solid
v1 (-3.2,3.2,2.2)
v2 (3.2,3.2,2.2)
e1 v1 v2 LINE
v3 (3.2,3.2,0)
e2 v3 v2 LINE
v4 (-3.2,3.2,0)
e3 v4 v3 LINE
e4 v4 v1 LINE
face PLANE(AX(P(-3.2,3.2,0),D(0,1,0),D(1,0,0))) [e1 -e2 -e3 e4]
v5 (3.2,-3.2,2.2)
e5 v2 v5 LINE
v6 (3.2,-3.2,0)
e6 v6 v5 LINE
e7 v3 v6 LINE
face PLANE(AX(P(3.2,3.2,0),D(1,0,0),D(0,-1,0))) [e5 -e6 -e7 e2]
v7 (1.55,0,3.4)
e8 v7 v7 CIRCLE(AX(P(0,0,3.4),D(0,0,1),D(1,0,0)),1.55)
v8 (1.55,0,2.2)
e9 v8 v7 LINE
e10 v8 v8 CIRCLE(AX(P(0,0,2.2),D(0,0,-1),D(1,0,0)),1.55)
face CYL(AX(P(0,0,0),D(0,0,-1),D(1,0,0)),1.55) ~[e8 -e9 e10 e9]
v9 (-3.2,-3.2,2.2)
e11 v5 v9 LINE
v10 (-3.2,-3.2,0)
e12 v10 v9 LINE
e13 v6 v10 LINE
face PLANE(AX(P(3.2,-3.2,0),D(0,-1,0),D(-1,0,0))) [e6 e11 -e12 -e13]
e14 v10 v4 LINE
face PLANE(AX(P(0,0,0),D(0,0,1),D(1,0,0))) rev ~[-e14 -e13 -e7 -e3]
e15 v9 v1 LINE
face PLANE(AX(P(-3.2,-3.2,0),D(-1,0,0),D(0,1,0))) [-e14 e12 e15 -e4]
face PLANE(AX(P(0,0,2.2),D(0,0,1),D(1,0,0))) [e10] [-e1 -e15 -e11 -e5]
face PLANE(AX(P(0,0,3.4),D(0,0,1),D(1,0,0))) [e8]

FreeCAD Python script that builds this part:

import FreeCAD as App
import Part
import Sketcher

V = App.Vector


def add_polygon(sketch, points):
    """Adds a closed chain of lines whose ends are joined by coincident constraints."""
    first, n = sketch.GeometryCount, len(points)
    for a, b in zip(points, points[1:] + points[:1]):
        sketch.addGeometry(Part.LineSegment(App.Vector(*a, 0), App.Vector(*b, 0)), False)
    for i in range(n):
        sketch.addConstraint(Sketcher.Constraint("Coincident", first + i, 2, first + (i + 1) % n, 1))

doc = App.newDocument("Part")
params = doc.addObject("Spreadsheet::Sheet", "Params")
for row, (alias, value) in enumerate([
    ("sketch1_width", "6.4 mm"),
    ("pad1_length", "2.2 mm"),
    ("sketch2_diameter", "3.1 mm"),
    ("pad2_length", "3.4 mm"),
], start=1):
    params.set(f"A{row}", alias)
    params.set(f"B{row}", "=" + value)
    params.setAlias(f"B{row}", alias)

body = doc.addObject("PartDesign::Body", "Body")

sketch1 = body.newObject("Sketcher::SketchObject", "Sketch")
sketch1.AttachmentSupport = (doc.getObject("XY_Plane"), [""])
sketch1.MapMode = "FlatFace"
add_polygon(sketch1, [(3, 3), (-3, 3), (-3, -3), (3, -3)])
sketch1.addConstraint([
    Sketcher.Constraint("Horizontal", 0),
    Sketcher.Constraint("Vertical", 1),
    Sketcher.Constraint("Horizontal", 2),
    Sketcher.Constraint("Vertical", 3),
    Sketcher.Constraint("Symmetric", 0, 2, 2, 2, -1, 1),
    Sketcher.Constraint("Equal", 2, 1),
    Sketcher.Constraint("DistanceX", 0, 2, 0, 1, 6.4),
])
sketch1.setExpression("Constraints[10]", "Params.sketch1_width")
pad1 = body.newObject("PartDesign::Pad", "Pad")
pad1.Profile = sketch1
pad1.setExpression("Length", "Params.pad1_length")

sketch2 = body.newObject("Sketcher::SketchObject", "Sketch001")
sketch2.AttachmentSupport = (doc.getObject("XY_Plane"), [""])
sketch2.MapMode = "FlatFace"
sketch2.addGeometry(Part.Circle(V(0, 0, 0), V(0, 0, 1), 1.6), False)
sketch2.addConstraint([
    Sketcher.Constraint("Coincident", 0, 3, -1, 1),
    Sketcher.Constraint("Diameter", 0, 3.1),
])
sketch2.setExpression("Constraints[1]", "Params.sketch2_diameter")
pad2 = body.newObject("PartDesign::Pad", "Pad001")
pad2.Profile = sketch2
pad2.setExpression("Length", "Params.pad2_length")

doc.recompute()
